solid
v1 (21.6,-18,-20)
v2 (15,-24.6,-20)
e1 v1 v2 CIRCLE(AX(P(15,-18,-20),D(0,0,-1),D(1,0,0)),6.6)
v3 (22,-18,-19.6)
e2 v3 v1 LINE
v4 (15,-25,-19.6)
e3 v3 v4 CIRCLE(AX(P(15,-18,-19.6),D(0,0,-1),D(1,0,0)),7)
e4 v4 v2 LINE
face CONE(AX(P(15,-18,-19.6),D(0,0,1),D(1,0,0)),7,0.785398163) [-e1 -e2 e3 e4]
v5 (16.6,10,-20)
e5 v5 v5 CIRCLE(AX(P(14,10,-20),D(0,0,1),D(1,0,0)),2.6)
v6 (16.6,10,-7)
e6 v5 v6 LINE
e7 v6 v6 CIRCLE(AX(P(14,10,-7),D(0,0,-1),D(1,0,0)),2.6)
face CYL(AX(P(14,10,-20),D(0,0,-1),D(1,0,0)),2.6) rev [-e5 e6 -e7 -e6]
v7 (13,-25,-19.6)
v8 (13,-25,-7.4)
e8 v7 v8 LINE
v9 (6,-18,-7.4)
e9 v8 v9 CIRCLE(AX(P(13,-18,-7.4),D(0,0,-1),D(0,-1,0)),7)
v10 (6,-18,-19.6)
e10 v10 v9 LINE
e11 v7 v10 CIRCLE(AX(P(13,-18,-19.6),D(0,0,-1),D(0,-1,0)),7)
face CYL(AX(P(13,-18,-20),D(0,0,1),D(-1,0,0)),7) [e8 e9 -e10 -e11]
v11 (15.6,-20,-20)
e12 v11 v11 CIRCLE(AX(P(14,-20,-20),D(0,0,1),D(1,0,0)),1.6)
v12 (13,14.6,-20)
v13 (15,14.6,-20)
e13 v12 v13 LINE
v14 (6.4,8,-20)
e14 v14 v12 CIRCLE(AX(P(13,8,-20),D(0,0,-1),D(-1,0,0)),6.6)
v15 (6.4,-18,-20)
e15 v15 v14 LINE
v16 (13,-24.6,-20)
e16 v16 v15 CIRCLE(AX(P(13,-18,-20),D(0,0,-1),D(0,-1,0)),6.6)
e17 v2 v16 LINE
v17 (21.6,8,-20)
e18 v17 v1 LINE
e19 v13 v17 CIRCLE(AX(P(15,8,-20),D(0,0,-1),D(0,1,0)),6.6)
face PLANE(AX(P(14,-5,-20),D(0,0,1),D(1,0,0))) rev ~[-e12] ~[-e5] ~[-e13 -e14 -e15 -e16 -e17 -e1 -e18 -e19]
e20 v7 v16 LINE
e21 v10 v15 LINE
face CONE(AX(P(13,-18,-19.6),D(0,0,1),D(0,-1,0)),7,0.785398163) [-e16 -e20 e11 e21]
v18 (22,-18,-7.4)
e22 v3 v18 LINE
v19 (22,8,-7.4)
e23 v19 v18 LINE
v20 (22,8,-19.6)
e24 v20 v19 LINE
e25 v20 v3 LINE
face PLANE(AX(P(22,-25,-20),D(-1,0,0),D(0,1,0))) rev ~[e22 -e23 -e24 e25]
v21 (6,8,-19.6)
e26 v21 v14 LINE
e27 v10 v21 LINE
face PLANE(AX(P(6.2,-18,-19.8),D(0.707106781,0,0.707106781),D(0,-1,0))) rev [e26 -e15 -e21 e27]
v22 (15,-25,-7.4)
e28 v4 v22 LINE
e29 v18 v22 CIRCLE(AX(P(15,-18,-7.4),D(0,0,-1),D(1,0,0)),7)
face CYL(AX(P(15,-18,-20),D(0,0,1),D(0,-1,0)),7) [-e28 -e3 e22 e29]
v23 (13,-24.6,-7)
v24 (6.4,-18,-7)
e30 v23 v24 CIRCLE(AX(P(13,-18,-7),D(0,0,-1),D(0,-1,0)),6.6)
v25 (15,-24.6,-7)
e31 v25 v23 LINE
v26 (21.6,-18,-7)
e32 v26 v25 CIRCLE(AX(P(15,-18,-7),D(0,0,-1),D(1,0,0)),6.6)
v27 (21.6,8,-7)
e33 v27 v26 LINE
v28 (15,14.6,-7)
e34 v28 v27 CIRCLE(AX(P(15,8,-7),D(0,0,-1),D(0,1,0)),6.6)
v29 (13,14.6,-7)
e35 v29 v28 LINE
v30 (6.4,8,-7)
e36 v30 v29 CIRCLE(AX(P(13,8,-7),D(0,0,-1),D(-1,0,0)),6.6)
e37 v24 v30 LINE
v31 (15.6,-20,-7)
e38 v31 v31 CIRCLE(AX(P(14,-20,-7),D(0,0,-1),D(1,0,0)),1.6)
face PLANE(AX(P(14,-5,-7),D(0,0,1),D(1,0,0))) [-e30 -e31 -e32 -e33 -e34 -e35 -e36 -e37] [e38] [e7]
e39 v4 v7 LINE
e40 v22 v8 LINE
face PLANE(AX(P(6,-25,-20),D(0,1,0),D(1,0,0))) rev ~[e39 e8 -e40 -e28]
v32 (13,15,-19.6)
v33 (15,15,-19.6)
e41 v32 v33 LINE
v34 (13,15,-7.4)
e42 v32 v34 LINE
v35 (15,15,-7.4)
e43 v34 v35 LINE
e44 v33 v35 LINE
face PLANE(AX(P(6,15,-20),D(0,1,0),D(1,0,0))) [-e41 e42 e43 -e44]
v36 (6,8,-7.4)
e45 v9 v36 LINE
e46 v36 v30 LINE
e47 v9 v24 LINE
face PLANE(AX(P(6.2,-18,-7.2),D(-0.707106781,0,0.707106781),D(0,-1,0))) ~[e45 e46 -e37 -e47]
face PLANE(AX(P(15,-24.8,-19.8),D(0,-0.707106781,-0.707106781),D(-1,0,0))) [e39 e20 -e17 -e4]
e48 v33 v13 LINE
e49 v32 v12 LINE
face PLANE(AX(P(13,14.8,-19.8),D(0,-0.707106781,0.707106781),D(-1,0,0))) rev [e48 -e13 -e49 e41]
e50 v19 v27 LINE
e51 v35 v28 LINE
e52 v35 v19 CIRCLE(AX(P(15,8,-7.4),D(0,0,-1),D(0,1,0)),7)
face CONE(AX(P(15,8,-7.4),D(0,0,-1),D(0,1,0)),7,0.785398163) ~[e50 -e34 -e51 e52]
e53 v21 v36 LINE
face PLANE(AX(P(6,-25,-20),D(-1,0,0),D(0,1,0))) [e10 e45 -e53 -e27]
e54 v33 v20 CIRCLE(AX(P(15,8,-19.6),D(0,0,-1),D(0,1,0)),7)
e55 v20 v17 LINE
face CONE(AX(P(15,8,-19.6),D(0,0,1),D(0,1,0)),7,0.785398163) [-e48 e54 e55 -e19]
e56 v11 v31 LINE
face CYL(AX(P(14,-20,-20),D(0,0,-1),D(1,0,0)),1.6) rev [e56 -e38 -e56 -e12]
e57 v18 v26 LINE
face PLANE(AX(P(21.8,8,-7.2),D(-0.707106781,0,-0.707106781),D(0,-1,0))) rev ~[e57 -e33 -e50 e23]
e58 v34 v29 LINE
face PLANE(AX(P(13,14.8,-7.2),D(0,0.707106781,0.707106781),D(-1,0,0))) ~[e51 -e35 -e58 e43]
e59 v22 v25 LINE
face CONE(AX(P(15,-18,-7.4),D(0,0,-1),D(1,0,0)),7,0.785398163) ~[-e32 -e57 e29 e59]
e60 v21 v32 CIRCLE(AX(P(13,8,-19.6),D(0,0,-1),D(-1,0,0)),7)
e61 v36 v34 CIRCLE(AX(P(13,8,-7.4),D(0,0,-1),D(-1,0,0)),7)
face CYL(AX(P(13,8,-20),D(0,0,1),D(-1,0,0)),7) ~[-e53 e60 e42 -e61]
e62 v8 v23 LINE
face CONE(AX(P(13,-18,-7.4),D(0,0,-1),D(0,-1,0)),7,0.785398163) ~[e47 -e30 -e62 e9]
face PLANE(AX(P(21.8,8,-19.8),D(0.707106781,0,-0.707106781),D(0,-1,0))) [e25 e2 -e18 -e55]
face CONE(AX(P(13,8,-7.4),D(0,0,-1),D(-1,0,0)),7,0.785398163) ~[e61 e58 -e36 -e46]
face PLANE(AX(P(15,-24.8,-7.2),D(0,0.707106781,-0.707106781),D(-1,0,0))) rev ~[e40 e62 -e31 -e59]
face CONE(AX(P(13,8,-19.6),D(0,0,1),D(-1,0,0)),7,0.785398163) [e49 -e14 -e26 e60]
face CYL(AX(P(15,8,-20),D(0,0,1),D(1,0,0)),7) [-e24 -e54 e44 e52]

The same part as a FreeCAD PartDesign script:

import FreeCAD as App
import Part
import Sketcher

V = App.Vector
Q = App.Units.Quantity


def edges_at(feature, points):
    """Names of the edges that pass closest to the given points."""
    edges = feature.Shape.Edges
    near = lambda p: min(range(len(edges)), key=lambda i: edges[i].distToShape(Part.Vertex(*p))[0])
    return sorted({f"Edge{near(p) + 1}" for p in points})

doc = App.newDocument("Part")
body = doc.addObject("PartDesign::Body", "Body")

sketch1 = body.newObject("Sketcher::SketchObject", "Sketch")
sketch1.AttachmentSupport = (doc.getObject("XY_Plane"), [""])
sketch1.MapMode = "FlatFace"
sketch1.AttachmentOffset = App.Placement(V(0, 0, -20), App.Rotation())
sketch1.addGeometry(Part.Circle(V(10, 10, 0), V(0, 0, 1), 2.6), False)
sketch1.addConstraint([
    Sketcher.Constraint("Diameter", 0, Q("5.2 mm")),
    Sketcher.Constraint("DistanceX", -1, 1, 0, 3, Q("10 mm")),
    Sketcher.Constraint("DistanceY", -1, 1, 0, 3, Q("10 mm")),
])
pad1 = body.newObject("PartDesign::Pad", "Pad")
pad1.Profile = sketch1
pad1.Length = 15
body2 = doc.addObject("PartDesign::Body", "Body001")
body2.AllowCompound = True

sketch2 = body2.newObject("Sketcher::SketchObject", "Sketch001")
sketch2.AttachmentSupport = (doc.getObject("XY_Plane001"), [""])
sketch2.MapMode = "FlatFace"
sketch2.AttachmentOffset = App.Placement(V(0, 0, -20), App.Rotation())
sketch2.addGeometry(Part.Circle(V(10, -20, 0), V(0, 0, 1), 1.6), False)
sketch2.addConstraint([
    Sketcher.Constraint("Diameter", 0, Q("3.2 mm")),
    Sketcher.Constraint("DistanceX", -1, 1, 0, 3, Q("10 mm")),
    Sketcher.Constraint("DistanceY", 0, 3, -1, 1, Q("20 mm")),
])
pad2 = body2.newObject("PartDesign::Pad", "Pad001")
pad2.Profile = sketch2
pad2.Length = 15
doc.recompute()

boolean = body2.newObject("PartDesign::Boolean", "Boolean")
boolean.Type = "Fuse"
boolean.addObjects([body])
body3 = doc.addObject("PartDesign::Body", "Body002")

sketch3 = body3.newObject("Sketcher::SketchObject", "Sketch002")
sketch3.AttachmentSupport = (doc.getObject("XY_Plane002"), [""])
sketch3.MapMode = "FlatFace"
sketch3.AttachmentOffset = App.Placement(V(0, 0, -20), App.Rotation())
sketch3.addGeometry([
    Part.LineSegment(V(2, 15, 0), V(2, -25, 0)),
    Part.LineSegment(V(2, -25, 0), V(18, -25, 0)),
    Part.LineSegment(V(18, -25, 0), V(18, 15, 0)),
    Part.LineSegment(V(18, 15, 0), V(2, 15, 0)),
], False)
sketch3.addConstraint([
    Sketcher.Constraint("Coincident", 0, 2, 1, 1),
    Sketcher.Constraint("Coincident", 1, 2, 2, 1),
    Sketcher.Constraint("Coincident", 2, 2, 3, 1),
    Sketcher.Constraint("Coincident", 3, 2, 0, 1),
    Sketcher.Constraint("Vertical", 0),
    Sketcher.Constraint("Horizontal", 1),
    Sketcher.Constraint("Vertical", 2),
    Sketcher.Constraint("Horizontal", 3),
    Sketcher.Constraint("DistanceX", 1, 1, 1, 2, Q("16 mm")),
    Sketcher.Constraint("DistanceY", 0, 2, 0, 1, Q("40 mm")),
    Sketcher.Constraint("DistanceX", -1, 1, 0, 2, Q("2 mm")),
    Sketcher.Constraint("DistanceY", 0, 2, -1, 1, Q("25 mm")),
])
pad3 = body3.newObject("PartDesign::Pad", "Pad002")
pad3.Profile = sketch3
pad3.Length = 13
doc.recompute()

fillet = body3.newObject("PartDesign::Fillet", "Fillet")
fillet.Base = (pad3, edges_at(pad3, [
    (2, -25, -13.5),
    (2, 15, -13.5),
    (18, -25, -13.5),
    (18, 15, -13.5),
]))
fillet.Radius = 7
doc.recompute()

chamfer = body3.newObject("PartDesign::Chamfer", "Chamfer")
chamfer.Base = (fillet, edges_at(fillet, [
    (2, -5, -7),
    (2, -5, -20),
    (4.05, -22.95, -7),
    (4.05, 12.95, -7),
    (10, -25, -7),
    (10, 15, -7),
    (15.95, -22.95, -7),
    (15.95, 12.95, -7),
    (18, -5, -7),
    (4.05, -22.95, -20),
    (4.05, 12.95, -20),
    (10, -25, -20),
    (10, 15, -20),
    (15.95, -22.95, -20),
    (15.95, 12.95, -20),
    (18, -5, -20),
]))
chamfer.Size = 0.4
doc.recompute()

boolean2 = body3.newObject("PartDesign::Boolean", "Boolean001")
boolean2.Type = "Cut"
boolean2.addObjects([body2])
body4 = doc.addObject("PartDesign::Body", "Body003")
doc.recompute()

body3.Placement = App.Placement(V(4, 0, 0), App.Rotation(V(0, 0, 1), 0))
boolean3 = body4.newObject("PartDesign::Boolean", "Boolean002")
boolean3.Type = "Fuse"
boolean3.addObjects([body3])

doc.recompute()
